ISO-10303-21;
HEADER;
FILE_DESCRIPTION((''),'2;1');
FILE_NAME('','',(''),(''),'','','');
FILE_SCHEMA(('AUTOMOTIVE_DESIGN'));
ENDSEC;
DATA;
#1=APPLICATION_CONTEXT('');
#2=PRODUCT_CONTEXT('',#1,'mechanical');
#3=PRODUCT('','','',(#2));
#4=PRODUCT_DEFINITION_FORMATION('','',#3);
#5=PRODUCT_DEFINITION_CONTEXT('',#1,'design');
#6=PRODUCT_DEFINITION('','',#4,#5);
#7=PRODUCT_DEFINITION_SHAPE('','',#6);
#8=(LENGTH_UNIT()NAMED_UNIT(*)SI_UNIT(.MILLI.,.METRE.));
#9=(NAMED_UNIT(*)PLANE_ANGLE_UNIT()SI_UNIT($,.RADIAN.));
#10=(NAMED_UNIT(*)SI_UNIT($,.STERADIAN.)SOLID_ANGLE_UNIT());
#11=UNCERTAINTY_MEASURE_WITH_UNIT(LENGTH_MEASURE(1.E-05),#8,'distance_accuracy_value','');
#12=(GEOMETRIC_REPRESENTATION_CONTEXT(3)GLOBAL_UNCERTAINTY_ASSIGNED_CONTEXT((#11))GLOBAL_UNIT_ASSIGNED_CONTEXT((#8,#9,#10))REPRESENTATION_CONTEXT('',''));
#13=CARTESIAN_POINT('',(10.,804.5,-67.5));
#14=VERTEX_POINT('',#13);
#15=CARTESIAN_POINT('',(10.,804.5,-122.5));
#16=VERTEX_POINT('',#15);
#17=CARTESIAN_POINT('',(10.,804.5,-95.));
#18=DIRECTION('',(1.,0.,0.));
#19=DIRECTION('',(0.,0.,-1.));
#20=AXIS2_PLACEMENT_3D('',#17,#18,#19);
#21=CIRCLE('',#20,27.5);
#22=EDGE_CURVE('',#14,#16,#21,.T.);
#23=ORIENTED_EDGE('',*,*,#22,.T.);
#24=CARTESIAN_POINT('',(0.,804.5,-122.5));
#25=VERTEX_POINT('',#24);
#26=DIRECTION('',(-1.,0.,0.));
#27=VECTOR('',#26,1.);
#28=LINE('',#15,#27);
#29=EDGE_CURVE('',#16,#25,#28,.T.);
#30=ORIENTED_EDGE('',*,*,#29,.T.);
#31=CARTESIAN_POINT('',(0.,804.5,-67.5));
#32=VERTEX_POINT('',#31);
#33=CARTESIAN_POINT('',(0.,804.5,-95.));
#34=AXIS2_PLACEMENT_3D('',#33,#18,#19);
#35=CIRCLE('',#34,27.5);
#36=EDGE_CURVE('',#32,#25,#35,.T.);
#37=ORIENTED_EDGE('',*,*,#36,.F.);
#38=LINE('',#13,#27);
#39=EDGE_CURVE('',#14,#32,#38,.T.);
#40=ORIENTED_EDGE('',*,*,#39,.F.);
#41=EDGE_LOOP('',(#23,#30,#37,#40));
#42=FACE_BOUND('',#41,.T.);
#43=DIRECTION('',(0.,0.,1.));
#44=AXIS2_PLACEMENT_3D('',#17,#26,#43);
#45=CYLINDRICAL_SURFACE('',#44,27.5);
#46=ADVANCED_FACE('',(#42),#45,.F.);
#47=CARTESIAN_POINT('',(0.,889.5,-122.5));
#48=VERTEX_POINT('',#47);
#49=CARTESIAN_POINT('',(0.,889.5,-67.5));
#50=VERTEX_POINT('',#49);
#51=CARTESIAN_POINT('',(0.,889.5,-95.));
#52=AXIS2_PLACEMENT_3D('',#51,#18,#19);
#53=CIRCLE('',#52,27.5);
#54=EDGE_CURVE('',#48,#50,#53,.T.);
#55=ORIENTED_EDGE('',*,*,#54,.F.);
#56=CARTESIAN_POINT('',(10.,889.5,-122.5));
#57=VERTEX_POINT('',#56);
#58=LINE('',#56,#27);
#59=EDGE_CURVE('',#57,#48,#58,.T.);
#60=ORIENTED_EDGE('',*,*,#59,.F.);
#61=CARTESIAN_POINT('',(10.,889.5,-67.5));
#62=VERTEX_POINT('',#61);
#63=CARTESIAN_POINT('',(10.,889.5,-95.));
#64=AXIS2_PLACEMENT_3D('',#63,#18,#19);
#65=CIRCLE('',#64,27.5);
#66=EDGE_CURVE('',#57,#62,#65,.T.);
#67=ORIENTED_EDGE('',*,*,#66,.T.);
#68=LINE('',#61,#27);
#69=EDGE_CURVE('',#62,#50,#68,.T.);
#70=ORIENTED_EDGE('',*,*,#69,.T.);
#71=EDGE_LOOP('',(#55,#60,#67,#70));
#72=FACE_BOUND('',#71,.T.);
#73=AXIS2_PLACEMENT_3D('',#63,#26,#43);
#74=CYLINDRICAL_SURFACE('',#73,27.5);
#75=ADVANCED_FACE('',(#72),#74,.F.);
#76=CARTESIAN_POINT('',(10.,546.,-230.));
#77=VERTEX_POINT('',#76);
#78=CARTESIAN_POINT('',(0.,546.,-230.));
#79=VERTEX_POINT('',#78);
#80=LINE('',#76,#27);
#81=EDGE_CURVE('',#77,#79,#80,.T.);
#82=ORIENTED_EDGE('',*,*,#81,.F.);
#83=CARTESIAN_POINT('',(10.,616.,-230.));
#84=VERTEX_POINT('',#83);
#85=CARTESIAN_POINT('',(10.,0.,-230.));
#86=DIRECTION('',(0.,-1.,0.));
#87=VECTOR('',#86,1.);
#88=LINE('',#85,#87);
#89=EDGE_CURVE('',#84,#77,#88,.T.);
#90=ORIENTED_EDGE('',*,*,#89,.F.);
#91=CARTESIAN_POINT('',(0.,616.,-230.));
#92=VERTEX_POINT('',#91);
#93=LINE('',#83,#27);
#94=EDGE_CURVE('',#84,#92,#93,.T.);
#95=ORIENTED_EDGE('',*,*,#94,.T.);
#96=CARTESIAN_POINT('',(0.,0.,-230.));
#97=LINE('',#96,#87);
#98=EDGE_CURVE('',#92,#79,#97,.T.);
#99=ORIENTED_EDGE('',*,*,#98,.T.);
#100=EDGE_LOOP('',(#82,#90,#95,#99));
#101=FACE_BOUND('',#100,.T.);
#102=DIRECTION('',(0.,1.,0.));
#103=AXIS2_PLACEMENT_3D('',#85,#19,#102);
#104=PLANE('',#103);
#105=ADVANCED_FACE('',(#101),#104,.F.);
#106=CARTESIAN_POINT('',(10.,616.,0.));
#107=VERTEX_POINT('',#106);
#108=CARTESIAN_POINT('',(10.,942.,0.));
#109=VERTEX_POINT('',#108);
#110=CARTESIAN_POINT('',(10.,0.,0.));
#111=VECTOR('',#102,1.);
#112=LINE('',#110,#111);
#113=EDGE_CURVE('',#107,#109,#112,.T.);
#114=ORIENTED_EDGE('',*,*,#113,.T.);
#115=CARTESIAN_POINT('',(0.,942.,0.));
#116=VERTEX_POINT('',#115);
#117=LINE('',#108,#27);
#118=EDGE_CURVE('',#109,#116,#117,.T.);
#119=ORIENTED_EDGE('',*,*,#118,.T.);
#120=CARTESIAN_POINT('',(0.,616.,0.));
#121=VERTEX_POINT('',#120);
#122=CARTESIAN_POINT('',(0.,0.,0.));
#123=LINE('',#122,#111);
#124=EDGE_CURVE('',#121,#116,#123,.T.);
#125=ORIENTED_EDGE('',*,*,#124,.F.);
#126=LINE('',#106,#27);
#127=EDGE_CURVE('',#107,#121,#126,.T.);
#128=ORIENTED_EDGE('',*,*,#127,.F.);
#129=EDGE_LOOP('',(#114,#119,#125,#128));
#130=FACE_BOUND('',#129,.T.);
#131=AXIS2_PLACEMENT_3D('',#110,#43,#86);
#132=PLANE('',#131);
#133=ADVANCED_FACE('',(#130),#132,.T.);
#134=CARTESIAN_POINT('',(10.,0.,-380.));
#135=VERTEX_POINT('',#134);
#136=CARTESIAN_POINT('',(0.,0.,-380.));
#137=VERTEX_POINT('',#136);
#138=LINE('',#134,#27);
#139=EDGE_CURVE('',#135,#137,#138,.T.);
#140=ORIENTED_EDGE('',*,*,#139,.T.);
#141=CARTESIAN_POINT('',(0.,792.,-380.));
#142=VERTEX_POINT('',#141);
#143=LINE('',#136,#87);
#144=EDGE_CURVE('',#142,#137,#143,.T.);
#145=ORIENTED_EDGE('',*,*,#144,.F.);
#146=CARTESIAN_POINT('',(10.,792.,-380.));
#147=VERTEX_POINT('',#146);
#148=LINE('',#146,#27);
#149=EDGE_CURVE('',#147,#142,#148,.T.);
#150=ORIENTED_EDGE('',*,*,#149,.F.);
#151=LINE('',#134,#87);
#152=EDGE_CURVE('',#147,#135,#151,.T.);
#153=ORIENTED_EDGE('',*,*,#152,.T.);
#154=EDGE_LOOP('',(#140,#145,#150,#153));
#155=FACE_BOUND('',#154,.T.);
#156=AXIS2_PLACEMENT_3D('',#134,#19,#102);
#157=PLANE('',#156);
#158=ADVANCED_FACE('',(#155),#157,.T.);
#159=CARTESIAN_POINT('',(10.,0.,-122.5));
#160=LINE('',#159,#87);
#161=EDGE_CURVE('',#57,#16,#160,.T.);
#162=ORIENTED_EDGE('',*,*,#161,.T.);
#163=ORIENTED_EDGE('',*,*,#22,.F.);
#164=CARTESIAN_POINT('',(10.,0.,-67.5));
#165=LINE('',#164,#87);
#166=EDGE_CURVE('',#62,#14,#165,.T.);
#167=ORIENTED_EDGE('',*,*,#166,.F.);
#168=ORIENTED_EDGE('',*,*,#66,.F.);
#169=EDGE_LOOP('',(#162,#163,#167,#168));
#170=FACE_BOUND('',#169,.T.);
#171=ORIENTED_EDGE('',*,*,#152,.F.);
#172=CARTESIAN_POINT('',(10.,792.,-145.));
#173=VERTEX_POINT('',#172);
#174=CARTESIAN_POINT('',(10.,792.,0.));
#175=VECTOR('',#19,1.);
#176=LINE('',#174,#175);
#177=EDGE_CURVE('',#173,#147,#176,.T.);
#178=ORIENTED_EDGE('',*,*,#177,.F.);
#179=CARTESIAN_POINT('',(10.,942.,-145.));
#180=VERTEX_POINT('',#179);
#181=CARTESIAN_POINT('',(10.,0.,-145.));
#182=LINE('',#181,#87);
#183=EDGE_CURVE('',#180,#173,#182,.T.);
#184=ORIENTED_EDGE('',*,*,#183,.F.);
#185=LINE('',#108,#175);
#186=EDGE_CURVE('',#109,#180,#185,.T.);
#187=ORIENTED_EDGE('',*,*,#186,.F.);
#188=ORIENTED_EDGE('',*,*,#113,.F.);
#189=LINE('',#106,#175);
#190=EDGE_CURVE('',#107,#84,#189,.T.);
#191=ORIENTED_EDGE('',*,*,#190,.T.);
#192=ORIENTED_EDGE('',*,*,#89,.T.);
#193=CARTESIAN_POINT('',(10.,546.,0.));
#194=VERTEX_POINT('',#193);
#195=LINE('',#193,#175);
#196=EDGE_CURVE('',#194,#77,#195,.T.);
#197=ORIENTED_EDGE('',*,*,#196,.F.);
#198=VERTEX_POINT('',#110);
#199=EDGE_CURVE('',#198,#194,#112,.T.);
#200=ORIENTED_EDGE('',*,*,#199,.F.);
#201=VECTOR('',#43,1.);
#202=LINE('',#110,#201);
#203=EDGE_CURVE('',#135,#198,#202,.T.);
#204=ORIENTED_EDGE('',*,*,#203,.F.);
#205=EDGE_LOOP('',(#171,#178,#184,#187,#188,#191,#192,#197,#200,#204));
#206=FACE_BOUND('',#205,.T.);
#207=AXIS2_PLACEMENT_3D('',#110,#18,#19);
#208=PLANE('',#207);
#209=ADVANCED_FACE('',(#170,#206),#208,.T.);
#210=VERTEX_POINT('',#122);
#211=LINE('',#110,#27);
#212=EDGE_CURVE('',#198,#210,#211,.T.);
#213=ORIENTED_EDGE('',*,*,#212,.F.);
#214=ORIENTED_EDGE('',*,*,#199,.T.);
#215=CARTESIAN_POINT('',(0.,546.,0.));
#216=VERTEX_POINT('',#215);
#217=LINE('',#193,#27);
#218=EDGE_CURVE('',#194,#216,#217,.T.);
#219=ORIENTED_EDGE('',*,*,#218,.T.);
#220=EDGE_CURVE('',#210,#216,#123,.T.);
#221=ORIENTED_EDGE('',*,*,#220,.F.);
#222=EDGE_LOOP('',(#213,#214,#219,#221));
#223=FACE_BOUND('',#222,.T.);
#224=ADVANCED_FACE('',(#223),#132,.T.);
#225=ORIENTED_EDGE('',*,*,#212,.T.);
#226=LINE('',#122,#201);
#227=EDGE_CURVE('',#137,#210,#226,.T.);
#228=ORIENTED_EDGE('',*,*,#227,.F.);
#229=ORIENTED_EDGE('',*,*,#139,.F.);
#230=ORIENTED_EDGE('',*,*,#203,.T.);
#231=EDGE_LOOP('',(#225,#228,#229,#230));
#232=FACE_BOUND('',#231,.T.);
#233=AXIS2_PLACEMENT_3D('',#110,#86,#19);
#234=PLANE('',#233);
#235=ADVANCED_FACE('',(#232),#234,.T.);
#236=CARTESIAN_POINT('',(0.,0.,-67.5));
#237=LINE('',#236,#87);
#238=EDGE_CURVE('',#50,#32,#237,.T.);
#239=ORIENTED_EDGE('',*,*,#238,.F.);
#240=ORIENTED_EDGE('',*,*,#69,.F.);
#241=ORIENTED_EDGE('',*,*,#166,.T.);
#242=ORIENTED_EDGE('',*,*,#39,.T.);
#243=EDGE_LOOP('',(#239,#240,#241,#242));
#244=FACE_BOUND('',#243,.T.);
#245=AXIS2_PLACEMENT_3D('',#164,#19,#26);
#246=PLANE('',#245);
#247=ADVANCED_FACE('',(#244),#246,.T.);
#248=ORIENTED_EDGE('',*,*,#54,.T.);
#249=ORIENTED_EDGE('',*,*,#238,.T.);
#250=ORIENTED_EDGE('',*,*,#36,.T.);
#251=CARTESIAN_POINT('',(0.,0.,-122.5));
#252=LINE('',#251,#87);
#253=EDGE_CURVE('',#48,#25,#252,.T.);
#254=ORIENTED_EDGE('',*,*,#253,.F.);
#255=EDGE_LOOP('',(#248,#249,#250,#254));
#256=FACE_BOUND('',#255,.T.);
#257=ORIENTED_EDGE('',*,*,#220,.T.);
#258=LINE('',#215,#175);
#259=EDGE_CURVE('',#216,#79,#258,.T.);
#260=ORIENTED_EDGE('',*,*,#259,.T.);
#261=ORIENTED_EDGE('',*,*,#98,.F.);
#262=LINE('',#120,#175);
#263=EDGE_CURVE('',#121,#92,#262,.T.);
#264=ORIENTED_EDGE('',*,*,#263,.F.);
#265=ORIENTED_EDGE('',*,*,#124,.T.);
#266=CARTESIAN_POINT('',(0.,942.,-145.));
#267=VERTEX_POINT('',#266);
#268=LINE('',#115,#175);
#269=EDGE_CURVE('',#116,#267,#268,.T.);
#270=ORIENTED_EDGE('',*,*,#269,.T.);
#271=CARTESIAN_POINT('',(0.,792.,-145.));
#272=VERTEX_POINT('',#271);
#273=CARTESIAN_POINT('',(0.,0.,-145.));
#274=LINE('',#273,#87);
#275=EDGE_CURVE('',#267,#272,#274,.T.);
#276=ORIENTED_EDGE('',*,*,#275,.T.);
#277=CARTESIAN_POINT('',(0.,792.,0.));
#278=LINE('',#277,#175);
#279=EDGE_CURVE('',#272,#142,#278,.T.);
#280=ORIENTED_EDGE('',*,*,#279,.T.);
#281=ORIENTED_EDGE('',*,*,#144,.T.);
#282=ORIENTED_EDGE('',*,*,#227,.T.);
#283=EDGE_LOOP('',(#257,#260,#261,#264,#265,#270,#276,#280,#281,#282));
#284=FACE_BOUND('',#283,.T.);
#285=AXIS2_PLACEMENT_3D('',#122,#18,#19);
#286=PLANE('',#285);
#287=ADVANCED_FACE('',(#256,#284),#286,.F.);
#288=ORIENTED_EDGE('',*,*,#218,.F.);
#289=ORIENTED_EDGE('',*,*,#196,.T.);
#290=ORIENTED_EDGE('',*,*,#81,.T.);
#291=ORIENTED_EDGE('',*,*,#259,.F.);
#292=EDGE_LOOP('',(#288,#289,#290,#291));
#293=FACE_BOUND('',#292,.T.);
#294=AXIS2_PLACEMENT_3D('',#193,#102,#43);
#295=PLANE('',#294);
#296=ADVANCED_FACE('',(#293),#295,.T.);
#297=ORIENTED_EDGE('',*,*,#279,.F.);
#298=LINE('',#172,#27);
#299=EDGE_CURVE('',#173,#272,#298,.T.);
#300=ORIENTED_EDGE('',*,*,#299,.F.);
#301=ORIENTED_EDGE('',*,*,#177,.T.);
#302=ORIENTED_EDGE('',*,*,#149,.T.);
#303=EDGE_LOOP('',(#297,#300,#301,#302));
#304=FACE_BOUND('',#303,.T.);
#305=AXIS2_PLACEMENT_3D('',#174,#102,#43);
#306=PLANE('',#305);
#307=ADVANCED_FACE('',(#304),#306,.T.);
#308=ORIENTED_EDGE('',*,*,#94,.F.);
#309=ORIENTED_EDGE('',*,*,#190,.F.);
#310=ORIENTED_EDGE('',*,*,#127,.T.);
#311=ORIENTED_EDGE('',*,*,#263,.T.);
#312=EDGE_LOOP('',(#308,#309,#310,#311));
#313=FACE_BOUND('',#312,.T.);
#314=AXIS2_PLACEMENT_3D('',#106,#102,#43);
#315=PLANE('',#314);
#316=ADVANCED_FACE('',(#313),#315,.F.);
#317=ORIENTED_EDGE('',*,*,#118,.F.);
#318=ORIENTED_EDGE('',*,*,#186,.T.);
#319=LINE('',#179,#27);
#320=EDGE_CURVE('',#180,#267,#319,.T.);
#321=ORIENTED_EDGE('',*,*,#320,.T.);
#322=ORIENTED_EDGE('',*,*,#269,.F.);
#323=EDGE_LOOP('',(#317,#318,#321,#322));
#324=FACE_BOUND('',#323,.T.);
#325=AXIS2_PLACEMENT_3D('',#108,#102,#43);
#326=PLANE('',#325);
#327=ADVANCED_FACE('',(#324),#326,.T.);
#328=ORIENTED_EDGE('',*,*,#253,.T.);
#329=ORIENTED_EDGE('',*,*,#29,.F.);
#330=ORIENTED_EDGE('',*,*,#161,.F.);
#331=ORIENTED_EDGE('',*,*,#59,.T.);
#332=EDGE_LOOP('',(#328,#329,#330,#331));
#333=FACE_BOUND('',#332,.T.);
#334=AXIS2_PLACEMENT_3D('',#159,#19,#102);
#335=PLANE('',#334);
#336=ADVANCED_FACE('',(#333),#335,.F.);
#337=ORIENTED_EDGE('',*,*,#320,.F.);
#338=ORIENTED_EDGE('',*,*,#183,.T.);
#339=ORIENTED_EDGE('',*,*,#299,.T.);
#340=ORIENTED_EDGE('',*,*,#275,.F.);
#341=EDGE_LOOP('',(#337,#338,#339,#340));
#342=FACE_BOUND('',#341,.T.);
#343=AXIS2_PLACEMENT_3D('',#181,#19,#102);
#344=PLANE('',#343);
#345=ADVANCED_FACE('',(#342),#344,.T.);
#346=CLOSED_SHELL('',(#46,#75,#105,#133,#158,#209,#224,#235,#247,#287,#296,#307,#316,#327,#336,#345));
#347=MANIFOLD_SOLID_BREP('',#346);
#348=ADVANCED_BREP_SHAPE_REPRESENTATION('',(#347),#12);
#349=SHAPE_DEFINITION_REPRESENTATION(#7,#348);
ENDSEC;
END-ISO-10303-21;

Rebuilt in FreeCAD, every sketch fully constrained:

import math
import FreeCAD as App
import Part
import Sketcher

V = App.Vector

doc = App.newDocument("Part")
body = doc.addObject("PartDesign::Body", "Body")

sketch1 = body.newObject("Sketcher::SketchObject", "Sketch")
sketch1.AttachmentSupport = (doc.getObject("YZ_Plane"), [""])
sketch1.MapMode = "FlatFace"
sketch1.addGeometry(Part.LineSegment(V(616, 0, 0), V(616, -230, 0)), False)
sketch1.addGeometry(Part.LineSegment(V(616, -230, 0), V(546, -230, 0)), False)
sketch1.addGeometry(Part.LineSegment(V(546, -230, 0), V(546, 0, 0)), False)
sketch1.addGeometry(Part.LineSegment(V(546, 0, 0), V(0, 0, 0)), False)
sketch1.addGeometry(Part.LineSegment(V(0, 0, 0), V(0, -380, 0)), False)
sketch1.addGeometry(Part.LineSegment(V(0, -380, 0), V(792, -380, 0)), False)
sketch1.addGeometry(Part.LineSegment(V(792, -380, 0), V(792, -145, 0)), False)
sketch1.addGeometry(Part.LineSegment(V(792, -145, 0), V(942, -145, 0)), False)
sketch1.addGeometry(Part.LineSegment(V(942, -145, 0), V(942, 0, 0)), False)
sketch1.addGeometry(Part.LineSegment(V(942, 0, 0), V(616, 0, 0)), False)
sketch1.addGeometry(Part.ArcOfCircle(Part.Circle(V(804, -95, 0), V(0, 0, 1), 28), math.radians(90), math.radians(270)), False)
sketch1.addGeometry(Part.LineSegment(V(804, -68, 0), V(890, -68, 0)), False)
sketch1.addGeometry(Part.ArcOfCircle(Part.Circle(V(890, -95, 0), V(0, 0, 1), 28), math.radians(-90), math.radians(90)), False)
sketch1.addGeometry(Part.LineSegment(V(890, -122, 0), V(804, -122, 0)), False)
sketch1.addConstraint(Sketcher.Constraint("Coincident", 0, 2, 1, 1))
sketch1.addConstraint(Sketcher.Constraint("Coincident", 1, 2, 2, 1))
sketch1.addConstraint(Sketcher.Constraint("Coincident", 2, 2, 3, 1))
sketch1.addConstraint(Sketcher.Constraint("Coincident", 3, 2, 4, 1))
sketch1.addConstraint(Sketcher.Constraint("Coincident", 4, 2, 5, 1))
sketch1.addConstraint(Sketcher.Constraint("Coincident", 5, 2, 6, 1))
sketch1.addConstraint(Sketcher.Constraint("Coincident", 6, 2, 7, 1))
sketch1.addConstraint(Sketcher.Constraint("Coincident", 7, 2, 8, 1))
sketch1.addConstraint(Sketcher.Constraint("Coincident", 8, 2, 9, 1))
sketch1.addConstraint(Sketcher.Constraint("Coincident", 9, 2, 0, 1))
sketch1.addConstraint(Sketcher.Constraint("Tangent", 10, 1, 11, 1))
sketch1.addConstraint(Sketcher.Constraint("Tangent", 11, 2, 12, 2))
sketch1.addConstraint(Sketcher.Constraint("Tangent", 12, 1, 13, 1))
sketch1.addConstraint(Sketcher.Constraint("Tangent", 13, 2, 10, 2))
sketch1.addConstraint(Sketcher.Constraint("Vertical", 0))
sketch1.addConstraint(Sketcher.Constraint("Horizontal", 1))
sketch1.addConstraint(Sketcher.Constraint("Vertical", 2))
sketch1.addConstraint(Sketcher.Constraint("Horizontal", 3))
sketch1.addConstraint(Sketcher.Constraint("Vertical", 4))
sketch1.addConstraint(Sketcher.Constraint("Horizontal", 5))
sketch1.addConstraint(Sketcher.Constraint("Vertical", 6))
sketch1.addConstraint(Sketcher.Constraint("Horizontal", 7))
sketch1.addConstraint(Sketcher.Constraint("Vertical", 8))
sketch1.addConstraint(Sketcher.Constraint("Horizontal", 9))
sketch1.addConstraint(Sketcher.Constraint("Horizontal", 11))
sketch1.addConstraint(Sketcher.Constraint("Horizontal", 13))
sketch1.addConstraint(Sketcher.Constraint("Coincident", 3, 2, -1, 1))
sketch1.addConstraint(Sketcher.Constraint("PointOnObject", 8, 2, -1))
sketch1.addConstraint(Sketcher.Constraint("Radius", 10, 27.5))
sketch1.addConstraint(Sketcher.Constraint("DistanceX", 1, 2, 1, 1, 70.0))
sketch1.addConstraint(Sketcher.Constraint("DistanceX", 3, 2, 3, 1, 546.0))
sketch1.addConstraint(Sketcher.Constraint("DistanceX", 5, 1, 5, 2, 792.0))
sketch1.addConstraint(Sketcher.Constraint("DistanceX", 7, 1, 7, 2, 150.0))
sketch1.addConstraint(Sketcher.Constraint("DistanceX", 11, 1, 11, 2, 85.0))
sketch1.addConstraint(Sketcher.Constraint("DistanceY", 0, 2, 0, 1, 230.0))
sketch1.addConstraint(Sketcher.Constraint("DistanceY", 4, 2, 4, 1, 380.0))
sketch1.addConstraint(Sketcher.Constraint("DistanceY", 6, 1, 6, 2, 235.0))
sketch1.addConstraint(Sketcher.Constraint("DistanceY", 10, 3, -1, 1, 95.0))
sketch1.addConstraint(Sketcher.Constraint("DistanceX", -1, 1, 10, 3, 804.5))
pad1 = body.newObject("PartDesign::Pad", "Pad")
pad1.Profile = sketch1
pad1.Length = 10

doc.recompute()
